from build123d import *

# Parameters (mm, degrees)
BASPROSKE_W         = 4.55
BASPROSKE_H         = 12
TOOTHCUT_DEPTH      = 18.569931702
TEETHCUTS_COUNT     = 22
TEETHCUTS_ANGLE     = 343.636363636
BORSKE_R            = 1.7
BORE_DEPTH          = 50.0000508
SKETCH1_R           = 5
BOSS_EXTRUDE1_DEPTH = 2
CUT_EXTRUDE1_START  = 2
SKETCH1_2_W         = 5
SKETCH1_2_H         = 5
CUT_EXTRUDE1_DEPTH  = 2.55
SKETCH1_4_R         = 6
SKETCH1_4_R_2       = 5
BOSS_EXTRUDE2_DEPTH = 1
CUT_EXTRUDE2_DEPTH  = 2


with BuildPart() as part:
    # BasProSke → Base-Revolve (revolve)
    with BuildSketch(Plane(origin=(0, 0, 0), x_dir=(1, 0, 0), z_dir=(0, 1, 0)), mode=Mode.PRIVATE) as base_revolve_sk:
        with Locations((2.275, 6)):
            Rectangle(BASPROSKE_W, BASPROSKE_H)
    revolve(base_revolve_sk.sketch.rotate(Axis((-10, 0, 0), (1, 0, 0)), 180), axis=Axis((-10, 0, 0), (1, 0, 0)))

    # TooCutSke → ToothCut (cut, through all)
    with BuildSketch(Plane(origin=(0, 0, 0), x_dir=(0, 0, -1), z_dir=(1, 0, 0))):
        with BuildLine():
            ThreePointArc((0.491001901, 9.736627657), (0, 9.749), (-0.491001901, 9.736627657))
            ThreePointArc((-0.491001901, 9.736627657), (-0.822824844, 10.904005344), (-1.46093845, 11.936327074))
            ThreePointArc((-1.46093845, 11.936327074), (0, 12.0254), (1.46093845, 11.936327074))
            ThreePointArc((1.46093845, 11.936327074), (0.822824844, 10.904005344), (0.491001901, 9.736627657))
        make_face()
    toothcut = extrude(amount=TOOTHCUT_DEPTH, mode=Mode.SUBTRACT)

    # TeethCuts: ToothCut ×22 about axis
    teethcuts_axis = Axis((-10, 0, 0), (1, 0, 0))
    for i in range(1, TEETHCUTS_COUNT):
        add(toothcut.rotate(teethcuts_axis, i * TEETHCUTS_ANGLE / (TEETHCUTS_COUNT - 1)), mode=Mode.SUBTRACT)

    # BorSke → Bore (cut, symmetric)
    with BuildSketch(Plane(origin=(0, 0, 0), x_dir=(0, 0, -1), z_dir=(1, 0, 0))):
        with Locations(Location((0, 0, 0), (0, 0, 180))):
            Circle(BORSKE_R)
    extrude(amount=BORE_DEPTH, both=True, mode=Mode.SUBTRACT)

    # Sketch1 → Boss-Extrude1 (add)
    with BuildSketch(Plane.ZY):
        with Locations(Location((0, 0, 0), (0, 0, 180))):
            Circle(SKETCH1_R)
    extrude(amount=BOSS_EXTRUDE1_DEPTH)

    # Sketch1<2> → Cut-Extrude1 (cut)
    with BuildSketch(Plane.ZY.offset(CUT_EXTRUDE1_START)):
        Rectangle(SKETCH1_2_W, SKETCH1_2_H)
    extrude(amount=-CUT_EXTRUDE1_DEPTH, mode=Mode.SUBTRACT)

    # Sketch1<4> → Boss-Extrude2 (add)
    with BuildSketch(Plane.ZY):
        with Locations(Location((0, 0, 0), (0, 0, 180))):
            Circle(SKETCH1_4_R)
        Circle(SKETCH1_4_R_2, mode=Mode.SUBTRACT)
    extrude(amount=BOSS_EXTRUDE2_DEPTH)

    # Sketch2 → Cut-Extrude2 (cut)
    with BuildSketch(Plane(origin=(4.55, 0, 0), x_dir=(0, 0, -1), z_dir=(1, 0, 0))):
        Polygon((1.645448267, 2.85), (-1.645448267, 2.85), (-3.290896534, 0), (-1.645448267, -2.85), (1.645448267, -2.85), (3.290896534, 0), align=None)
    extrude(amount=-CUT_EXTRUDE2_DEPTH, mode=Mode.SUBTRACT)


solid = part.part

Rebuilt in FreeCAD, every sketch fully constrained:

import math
import FreeCAD as App
import Part
import Sketcher

V = App.Vector
Q = App.Units.Quantity


def add_polygon(sketch, points):
    """Adds a closed chain of lines whose ends are joined by coincident constraints."""
    first, n = sketch.GeometryCount, len(points)
    for a, b in zip(points, points[1:] + points[:1]):
        sketch.addGeometry(Part.LineSegment(App.Vector(*a, 0), App.Vector(*b, 0)), False)
    for i in range(n):
        sketch.addConstraint(Sketcher.Constraint("Coincident", first + i, 2, first + (i + 1) % n, 1))

doc = App.newDocument("Part")
body = doc.addObject("PartDesign::Body", "Body")

# Sketch on XZ plane
sketch1 = body.newObject("Sketcher::SketchObject", "Sketch")
sketch1.AttachmentSupport = (doc.getObject("XZ_Plane"), [""])
sketch1.MapMode = "FlatFace"
add_polygon(sketch1, [(0, -12), (0, 0), (4.5, 0), (4.5, -12)])  # lines 0-3
sketch1.addConstraint([
    Sketcher.Constraint("Vertical", 0),
    Sketcher.Constraint("Horizontal", 1),
    Sketcher.Constraint("Vertical", 2),
    Sketcher.Constraint("Horizontal", 3),
    Sketcher.Constraint("Coincident", 0, 2, -1, 1),
    Sketcher.Constraint("DistanceY", 0, 1, 0, 2, Q("12 mm")),
    Sketcher.Constraint("DistanceX", 1, 1, 1, 2, Q("4.55 mm")),
])
revolution = body.newObject("PartDesign::Revolution", "Revolution")
revolution.Profile = sketch1
revolution.ReferenceAxis = (sketch1, ["H_Axis"])
revolution.Angle = 360

# Sketch on YZ plane
sketch2 = body.newObject("Sketcher::SketchObject", "Sketch001")
sketch2.AttachmentSupport = (doc.getObject("YZ_Plane"), [""])
sketch2.MapMode = "FlatFace"
sketch2.addGeometry([
    Part.ArcOfCircle(Part.Circle(V(0, 0, 0), V(0, 0, 1), 9.7), math.radians(-2.89), math.radians(2.89)),
    Part.ArcOfCircle(Part.Circle(V(9.1, -4.8, 0), V(0, 0, 1), 4.4), math.radians(50), math.radians(82)),
    Part.ArcOfCircle(Part.Circle(V(0, 0, 0), V(0, 0, 1), 12), math.radians(-6.98), math.radians(6.98)),
    Part.ArcOfCircle(Part.Circle(V(9.1, 4.8, 0), V(0, 0, 1), 4.4), math.radians(-82), math.radians(-50)),
], False)
sketch2.addConstraint([
    Sketcher.Constraint("Coincident", 0, 1, 1, 2),
    Sketcher.Constraint("Coincident", 1, 1, 2, 1),
    Sketcher.Constraint("Coincident", 2, 2, 3, 2),
    Sketcher.Constraint("Coincident", 3, 1, 0, 2),
    Sketcher.Constraint("Coincident", 0, 3, -1, 1),
    Sketcher.Constraint("Coincident", 2, 3, -1, 1),
    Sketcher.Constraint("Equal", 1, 3),
    Sketcher.Constraint("Symmetric", 1, 3, 3, 3, -1),
    Sketcher.Constraint("Radius", 1, Q("4.4 mm")),
    Sketcher.Constraint("Radius", 0, Q("9.749 mm")),
    Sketcher.Constraint("Radius", 2, Q("12.0254 mm")),
    Sketcher.Constraint("DistanceY", 0, 1, -1, 1, Q("0.491002 mm")),
    Sketcher.Constraint("DistanceX", 0, 1, 1, 1, Q("2.199699 mm")),
])
pocket1 = body.newObject("PartDesign::Pocket", "Pocket")
pocket1.Profile = sketch2
pocket1.Type = "ThroughAll"
pocket1.Reversed = True
doc.recompute()

polarpattern = body.newObject("PartDesign::PolarPattern", "PolarPattern")
polarpattern.Originals = [pocket1]
polarpattern.Axis = (doc.getObject("X_Axis"), [""])
polarpattern.Angle = 360
polarpattern.Occurrences = 22
body.Tip = polarpattern

# Sketch on YZ plane
sketch3 = body.newObject("Sketcher::SketchObject", "Sketch002")
sketch3.AttachmentSupport = (doc.getObject("YZ_Plane"), [""])
sketch3.MapMode = "FlatFace"
sketch3.addGeometry(Part.Circle(V(0, 0, 0), V(0, 0, 1), 1.7), False)
sketch3.addConstraint([
    Sketcher.Constraint("Coincident", 0, 3, -1, 1),
    Sketcher.Constraint("Diameter", 0, Q("3.4 mm")),
])
pocket2 = body.newObject("PartDesign::Pocket", "Pocket001")
pocket2.Profile = sketch3
pocket2.Length = 100.000102
pocket2.Midplane = True

# Sketch on YZ plane
sketch4 = body.newObject("Sketcher::SketchObject", "Sketch003")
sketch4.AttachmentSupport = (doc.getObject("YZ_Plane"), [""])
sketch4.MapMode = "FlatFace"
sketch4.addGeometry(Part.Circle(V(0, 0, 0), V(0, 0, 1), 5), False)
sketch4.addConstraint([
    Sketcher.Constraint("Coincident", 0, 3, -1, 1),
    Sketcher.Constraint("Diameter", 0, Q("10 mm")),
])
pad1 = body.newObject("PartDesign::Pad", "Pad")
pad1.Profile = sketch4
pad1.Length = 2
pad1.Reversed = True

# Sketch on YZ plane
sketch5 = body.newObject("Sketcher::SketchObject", "Sketch004")
sketch5.AttachmentSupport = (doc.getObject("YZ_Plane"), [""])
sketch5.MapMode = "FlatFace"
sketch5.AttachmentOffset = App.Placement(V(0, 0, -2), App.Rotation())
add_polygon(sketch5, [(2, -2), (-2, -2), (-2, 2), (2, 2)])  # lines 0-3
sketch5.addConstraint([
    Sketcher.Constraint("Horizontal", 0),
    Sketcher.Constraint("Vertical", 1),
    Sketcher.Constraint("Horizontal", 2),
    Sketcher.Constraint("Vertical", 3),
    Sketcher.Constraint("Symmetric", 0, 2, 2, 2, -1, 1),
    Sketcher.Constraint("Equal", 2, 1),
    Sketcher.Constraint("DistanceX", 0, 2, 0, 1, Q("5 mm")),
])
pocket3 = body.newObject("PartDesign::Pocket", "Pocket002")
pocket3.Profile = sketch5
pocket3.Length = 2.55
pocket3.Reversed = True

# Sketch on YZ plane
sketch6 = body.newObject("Sketcher::SketchObject", "Sketch005")
sketch6.AttachmentSupport = (doc.getObject("YZ_Plane"), [""])
sketch6.MapMode = "FlatFace"
sketch6.addGeometry([
    Part.Circle(V(0, 0, 0), V(0, 0, 1), 6),
    Part.Circle(V(0, 0, 0), V(0, 0, 1), 5),
], False)
sketch6.addConstraint([
    Sketcher.Constraint("Coincident", 0, 3, -1, 1),
    Sketcher.Constraint("Coincident", 1, 3, -1, 1),
    Sketcher.Constraint("Diameter", 0, Q("12 mm")),
    Sketcher.Constraint("Diameter", 1, Q("10 mm")),
])
pad2 = body.newObject("PartDesign::Pad", "Pad001")
pad2.Profile = sketch6
pad2.Length = 1
pad2.Reversed = True

# Sketch on YZ plane
sketch7 = body.newObject("Sketcher::SketchObject", "Sketch006")
sketch7.AttachmentSupport = (doc.getObject("YZ_Plane"), [""])
sketch7.MapMode = "FlatFace"
sketch7.AttachmentOffset = App.Placement(V(0, 0, 4.55), App.Rotation())
add_polygon(sketch7, [(2.9, -1.6), (2.9, 1.6), (0, 3.3), (-2.9, 1.6), (-2.9, -1.6), (0, -3.3)])  # lines 0-5
sketch7.addConstraint([
    Sketcher.Constraint("Vertical", 0),
    Sketcher.Constraint("Vertical", 3),
    Sketcher.Constraint("Symmetric", 0, 2, 3, 2, -1, 1),
    Sketcher.Constraint("Symmetric", 1, 2, 4, 2, -1, 1),
    Sketcher.Constraint("PointOnObject", 1, 2, -2),
    Sketcher.Constraint("Parallel", 2, 5),
    Sketcher.Constraint("Horizontal", 0, 2, 2, 2),
    Sketcher.Constraint("Angle", 1, Q("150 deg")),
    Sketcher.Constraint("DistanceX", 2, 2, 0, 2, Q("5.7 mm")),
    Sketcher.Constraint("DistanceY", 0, 1, 0, 2, Q("3.290897 mm")),
])
pocket4 = body.newObject("PartDesign::Pocket", "Pocket003")
pocket4.Profile = sketch7
pocket4.Length = 2

doc.recompute()
